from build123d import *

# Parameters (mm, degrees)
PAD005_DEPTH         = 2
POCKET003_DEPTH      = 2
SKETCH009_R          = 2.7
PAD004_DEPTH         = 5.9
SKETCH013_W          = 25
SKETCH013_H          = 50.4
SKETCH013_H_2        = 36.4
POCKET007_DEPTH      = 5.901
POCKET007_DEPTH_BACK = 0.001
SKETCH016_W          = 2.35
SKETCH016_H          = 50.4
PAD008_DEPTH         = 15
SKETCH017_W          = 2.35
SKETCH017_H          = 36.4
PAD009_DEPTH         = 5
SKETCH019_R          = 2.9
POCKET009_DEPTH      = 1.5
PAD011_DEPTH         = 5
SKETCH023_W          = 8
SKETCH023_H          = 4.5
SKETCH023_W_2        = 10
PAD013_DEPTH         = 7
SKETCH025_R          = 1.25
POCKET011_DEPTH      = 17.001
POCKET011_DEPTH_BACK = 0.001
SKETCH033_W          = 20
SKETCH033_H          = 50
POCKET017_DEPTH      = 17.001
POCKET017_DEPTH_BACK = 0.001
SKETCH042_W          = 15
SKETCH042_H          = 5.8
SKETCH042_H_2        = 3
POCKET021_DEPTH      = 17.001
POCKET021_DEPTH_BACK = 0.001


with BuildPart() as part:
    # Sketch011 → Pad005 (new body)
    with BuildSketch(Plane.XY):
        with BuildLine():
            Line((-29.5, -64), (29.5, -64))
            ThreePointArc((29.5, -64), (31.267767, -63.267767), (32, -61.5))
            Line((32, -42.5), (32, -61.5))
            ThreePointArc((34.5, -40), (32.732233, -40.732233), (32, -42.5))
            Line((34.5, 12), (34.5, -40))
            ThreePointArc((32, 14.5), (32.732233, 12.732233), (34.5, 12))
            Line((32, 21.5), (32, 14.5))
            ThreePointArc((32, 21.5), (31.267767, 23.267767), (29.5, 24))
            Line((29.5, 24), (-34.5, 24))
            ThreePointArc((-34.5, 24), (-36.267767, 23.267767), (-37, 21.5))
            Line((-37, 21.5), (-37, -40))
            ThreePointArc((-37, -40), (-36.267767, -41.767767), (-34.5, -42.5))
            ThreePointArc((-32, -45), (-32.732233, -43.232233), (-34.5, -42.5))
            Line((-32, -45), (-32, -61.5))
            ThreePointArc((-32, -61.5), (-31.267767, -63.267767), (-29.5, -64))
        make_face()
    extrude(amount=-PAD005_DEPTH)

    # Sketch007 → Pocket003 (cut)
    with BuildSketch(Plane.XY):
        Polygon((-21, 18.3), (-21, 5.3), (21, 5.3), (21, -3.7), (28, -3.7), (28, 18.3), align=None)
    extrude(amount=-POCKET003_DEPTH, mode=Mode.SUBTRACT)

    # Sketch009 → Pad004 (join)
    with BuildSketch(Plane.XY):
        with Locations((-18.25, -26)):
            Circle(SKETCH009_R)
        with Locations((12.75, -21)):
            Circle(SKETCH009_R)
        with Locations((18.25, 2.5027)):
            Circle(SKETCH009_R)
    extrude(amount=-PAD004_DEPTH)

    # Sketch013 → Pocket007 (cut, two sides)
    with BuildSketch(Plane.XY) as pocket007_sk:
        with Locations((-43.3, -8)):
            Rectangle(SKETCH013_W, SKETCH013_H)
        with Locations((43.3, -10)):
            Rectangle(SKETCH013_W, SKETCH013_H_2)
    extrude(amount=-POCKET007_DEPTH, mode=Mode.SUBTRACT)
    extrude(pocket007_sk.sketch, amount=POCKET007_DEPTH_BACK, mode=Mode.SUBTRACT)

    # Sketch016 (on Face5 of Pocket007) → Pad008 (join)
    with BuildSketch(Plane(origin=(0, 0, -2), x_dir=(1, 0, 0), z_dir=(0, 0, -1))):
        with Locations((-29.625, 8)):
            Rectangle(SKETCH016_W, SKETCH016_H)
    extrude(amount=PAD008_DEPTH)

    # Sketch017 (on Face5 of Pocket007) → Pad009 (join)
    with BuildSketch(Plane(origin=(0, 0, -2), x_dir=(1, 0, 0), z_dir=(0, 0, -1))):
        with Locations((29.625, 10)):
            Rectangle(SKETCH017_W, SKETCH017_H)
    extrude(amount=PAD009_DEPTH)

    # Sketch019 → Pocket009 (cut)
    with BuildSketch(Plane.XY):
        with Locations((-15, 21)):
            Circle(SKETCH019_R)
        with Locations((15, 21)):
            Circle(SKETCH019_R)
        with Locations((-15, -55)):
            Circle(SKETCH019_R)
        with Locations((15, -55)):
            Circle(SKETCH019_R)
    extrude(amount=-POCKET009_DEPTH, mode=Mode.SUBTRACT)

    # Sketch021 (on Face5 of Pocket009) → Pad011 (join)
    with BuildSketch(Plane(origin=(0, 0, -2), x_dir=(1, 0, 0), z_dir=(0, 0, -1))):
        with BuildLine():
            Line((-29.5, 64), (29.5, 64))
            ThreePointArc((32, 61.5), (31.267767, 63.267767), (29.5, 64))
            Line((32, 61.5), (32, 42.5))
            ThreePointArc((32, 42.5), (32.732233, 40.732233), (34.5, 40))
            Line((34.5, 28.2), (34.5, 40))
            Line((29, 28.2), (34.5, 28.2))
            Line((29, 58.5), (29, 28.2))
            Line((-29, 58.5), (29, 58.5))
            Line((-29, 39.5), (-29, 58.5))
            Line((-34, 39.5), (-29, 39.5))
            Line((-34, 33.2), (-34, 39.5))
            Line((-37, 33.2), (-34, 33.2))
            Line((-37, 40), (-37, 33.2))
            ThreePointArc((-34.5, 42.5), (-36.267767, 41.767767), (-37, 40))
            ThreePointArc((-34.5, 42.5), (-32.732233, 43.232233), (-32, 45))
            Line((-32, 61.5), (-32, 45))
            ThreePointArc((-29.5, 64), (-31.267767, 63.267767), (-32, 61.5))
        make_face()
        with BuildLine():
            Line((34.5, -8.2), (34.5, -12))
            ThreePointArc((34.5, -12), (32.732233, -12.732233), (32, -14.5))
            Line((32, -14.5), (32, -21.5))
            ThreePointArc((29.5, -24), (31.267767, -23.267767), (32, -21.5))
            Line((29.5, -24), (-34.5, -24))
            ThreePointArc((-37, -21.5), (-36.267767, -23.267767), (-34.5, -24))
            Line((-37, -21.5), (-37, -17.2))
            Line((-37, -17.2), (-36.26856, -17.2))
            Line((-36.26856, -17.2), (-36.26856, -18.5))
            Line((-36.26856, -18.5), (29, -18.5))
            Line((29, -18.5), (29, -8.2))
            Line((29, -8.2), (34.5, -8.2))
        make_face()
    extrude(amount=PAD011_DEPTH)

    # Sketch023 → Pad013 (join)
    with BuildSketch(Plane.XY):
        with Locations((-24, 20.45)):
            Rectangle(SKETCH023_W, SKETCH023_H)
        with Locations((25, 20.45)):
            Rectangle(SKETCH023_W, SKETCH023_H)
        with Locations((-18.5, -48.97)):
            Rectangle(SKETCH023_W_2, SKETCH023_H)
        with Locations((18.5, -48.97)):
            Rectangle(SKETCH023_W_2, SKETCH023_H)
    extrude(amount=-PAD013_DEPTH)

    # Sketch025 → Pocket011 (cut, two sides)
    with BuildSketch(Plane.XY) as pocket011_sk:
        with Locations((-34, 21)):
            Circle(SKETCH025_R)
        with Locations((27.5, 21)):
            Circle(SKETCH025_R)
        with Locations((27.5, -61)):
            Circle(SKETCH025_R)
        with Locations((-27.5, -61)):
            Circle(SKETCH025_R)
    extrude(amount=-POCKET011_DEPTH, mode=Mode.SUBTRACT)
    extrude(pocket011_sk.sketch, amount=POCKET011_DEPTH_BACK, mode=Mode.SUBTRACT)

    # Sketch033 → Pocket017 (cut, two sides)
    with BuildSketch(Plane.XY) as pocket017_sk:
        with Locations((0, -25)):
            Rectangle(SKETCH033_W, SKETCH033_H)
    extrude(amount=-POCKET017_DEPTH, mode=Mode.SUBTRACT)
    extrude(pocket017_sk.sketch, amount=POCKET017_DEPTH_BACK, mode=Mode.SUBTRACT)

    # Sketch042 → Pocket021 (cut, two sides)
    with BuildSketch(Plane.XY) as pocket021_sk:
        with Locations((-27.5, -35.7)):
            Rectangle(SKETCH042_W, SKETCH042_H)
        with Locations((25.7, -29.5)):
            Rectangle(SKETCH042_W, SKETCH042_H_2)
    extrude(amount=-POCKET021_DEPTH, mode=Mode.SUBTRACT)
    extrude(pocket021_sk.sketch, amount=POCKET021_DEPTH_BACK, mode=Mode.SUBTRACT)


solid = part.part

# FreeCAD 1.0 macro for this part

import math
import FreeCAD as App
import Part
import Sketcher
Q = App.Units.Quantity

doc = App.newDocument("Part")
body = doc.addObject("PartDesign::Body", "Body")

sketch1 = body.newObject("Sketcher::SketchObject", "Sketch")
sketch1.AttachmentSupport = (doc.getObject("XY_Plane"), [""])
sketch1.MapMode = "FlatFace"
sketch1.addGeometry([
    Part.LineSegment(App.Vector(-29.5, -64, 0), App.Vector(29.5, -64, 0)),
    Part.ArcOfCircle(Part.Circle(App.Vector(29.5, -61.5, 0), App.Vector(0, 0, 1), 2.5), math.radians(-90.000004), math.radians(0.000004)),
    Part.LineSegment(App.Vector(32, -61.5, 0), App.Vector(32, -42.5, 0)),
    Part.ArcOfCircle(Part.Circle(App.Vector(34.5, -42.5, 0), App.Vector(0, 0, 1), 2.5), math.radians(89.999996), math.radians(180.000004)),
    Part.LineSegment(App.Vector(34.5, -40, 0), App.Vector(34.5, 12, 0)),
    Part.ArcOfCircle(Part.Circle(App.Vector(34.5, 14.5, 0), App.Vector(0, 0, 1), 2.5), math.radians(179.999996), math.radians(270.000004)),
    Part.LineSegment(App.Vector(32, 14.5, 0), App.Vector(32, 21.5, 0)),
    Part.ArcOfCircle(Part.Circle(App.Vector(29.5, 21.5, 0), App.Vector(0, 0, 1), 2.5), math.radians(-0.000004), math.radians(90.000004)),
    Part.LineSegment(App.Vector(29.5, 24, 0), App.Vector(-34.5, 24, 0)),
    Part.ArcOfCircle(Part.Circle(App.Vector(-34.5, 21.5, 0), App.Vector(0, 0, 1), 2.5), math.radians(89.999996), math.radians(180.000004)),
    Part.LineSegment(App.Vector(-37, 21.5, 0), App.Vector(-37, -40, 0)),
    Part.ArcOfCircle(Part.Circle(App.Vector(-34.5, -40, 0), App.Vector(0, 0, 1), 2.5), math.radians(179.999996), math.radians(270.000004)),
    Part.ArcOfCircle(Part.Circle(App.Vector(-34.5, -45, 0), App.Vector(0, 0, 1), 2.5), math.radians(-0.000004), math.radians(90.000004)),
    Part.LineSegment(App.Vector(-32, -45, 0), App.Vector(-32, -61.5, 0)),
    Part.ArcOfCircle(Part.Circle(App.Vector(-29.5, -61.5, 0), App.Vector(0, 0, 1), 2.5), math.radians(179.999996), math.radians(270.000004)),
], False)
sketch1.addConstraint([
    Sketcher.Constraint("Tangent", 0, 2, 1, 1),
    Sketcher.Constraint("Tangent", 1, 2, 2, 1),
    Sketcher.Constraint("Tangent", 2, 2, 3, 2),
    Sketcher.Constraint("Coincident", 3, 1, 4, 1),
    Sketcher.Constraint("Coincident", 4, 2, 5, 2),
    Sketcher.Constraint("Tangent", 5, 1, 6, 1),
    Sketcher.Constraint("Tangent", 6, 2, 7, 1),
    Sketcher.Constraint("Tangent", 7, 2, 8, 1),
    Sketcher.Constraint("Tangent", 8, 2, 9, 1),
    Sketcher.Constraint("Tangent", 9, 2, 10, 1),
    Sketcher.Constraint("Tangent", 10, 2, 11, 1),
    Sketcher.Constraint("Tangent", 11, 2, 12, 2),
    Sketcher.Constraint("Tangent", 12, 1, 13, 1),
    Sketcher.Constraint("Tangent", 13, 2, 14, 1),
    Sketcher.Constraint("Tangent", 14, 2, 0, 1),
    Sketcher.Constraint("Horizontal", 0),
    Sketcher.Constraint("Vertical", 2),
    Sketcher.Constraint("Vertical", 4),
    Sketcher.Constraint("Vertical", 6),
    Sketcher.Constraint("Horizontal", 8),
    Sketcher.Constraint("Vertical", 10),
    Sketcher.Constraint("Vertical", 13),
    Sketcher.Constraint("Equal", 1, 3),
    Sketcher.Constraint("Equal", 3, 5),
    Sketcher.Constraint("Equal", 5, 7),
    Sketcher.Constraint("Equal", 7, 9),
    Sketcher.Constraint("Equal", 9, 11),
    Sketcher.Constraint("Equal", 11, 12),
    Sketcher.Constraint("Equal", 12, 14),
    Sketcher.Constraint("Horizontal", 11, 3, 3, 1),
    Sketcher.Constraint("Vertical", 3, 3, 5, 3),
    Sketcher.Constraint("Vertical", 11, 3, 12, 3),
    Sketcher.Constraint("Vertical", 5, 3, 3, 1),
    Sketcher.Constraint("Radius", 1, Q("2.5 mm")),
    Sketcher.Constraint("DistanceX", 0, 1, 0, 2, Q("59 mm")),
    Sketcher.Constraint("DistanceY", 2, 1, 2, 2, Q("19 mm")),
    Sketcher.Constraint("DistanceY", 4, 1, 4, 2, Q("52 mm")),
    Sketcher.Constraint("DistanceY", 6, 1, 6, 2, Q("7 mm")),
    Sketcher.Constraint("DistanceY", 11, 3, -1, 1, Q("40 mm")),
    Sketcher.Constraint("DistanceX", -1, 1, 1, 2, Q("32 mm")),
])
pad1 = body.newObject("PartDesign::Pad", "Pad")
pad1.Profile = sketch1
pad1.Length = 2
pad1.Reversed = True

sketch2 = body.newObject("Sketcher::SketchObject", "Sketch001")
sketch2.AttachmentSupport = (doc.getObject("XY_Plane"), [""])
sketch2.MapMode = "FlatFace"
sketch2.addGeometry([
    Part.LineSegment(App.Vector(-21, 18.3, 0), App.Vector(-21, 5.3, 0)),
    Part.LineSegment(App.Vector(-21, 5.3, 0), App.Vector(21, 5.3, 0)),
    Part.LineSegment(App.Vector(21, 5.3, 0), App.Vector(21, -3.7, 0)),
    Part.LineSegment(App.Vector(21, -3.7, 0), App.Vector(28, -3.7, 0)),
    Part.LineSegment(App.Vector(28, -3.7, 0), App.Vector(28, 18.3, 0)),
    Part.LineSegment(App.Vector(28, 18.3, 0), App.Vector(-21, 18.3, 0)),
], False)
sketch2.addConstraint([
    Sketcher.Constraint("Coincident", 0, 2, 1, 1),
    Sketcher.Constraint("Coincident", 1, 2, 2, 1),
    Sketcher.Constraint("Coincident", 2, 2, 3, 1),
    Sketcher.Constraint("Coincident", 3, 2, 4, 1),
    Sketcher.Constraint("Coincident", 4, 2, 5, 1),
    Sketcher.Constraint("Coincident", 5, 2, 0, 1),
    Sketcher.Constraint("Vertical", 0),
    Sketcher.Constraint("Horizontal", 1),
    Sketcher.Constraint("Vertical", 2),
    Sketcher.Constraint("Horizontal", 3),
    Sketcher.Constraint("Vertical", 4),
    Sketcher.Constraint("Horizontal", 5),
    Sketcher.Constraint("DistanceX", 1, 1, 1, 2, Q("42 mm")),
    Sketcher.Constraint("DistanceX", 3, 1, 3, 2, Q("7 mm")),
    Sketcher.Constraint("DistanceY", 0, 2, 0, 1, Q("13 mm")),
    Sketcher.Constraint("DistanceY", 2, 2, 2, 1, Q("9 mm")),
    Sketcher.Constraint("DistanceX", 0, 2, -1, 1, Q("21 mm")),
    Sketcher.Constraint("DistanceY", -1, 1, 0, 2, Q("5.3 mm")),
])
pocket1 = body.newObject("PartDesign::Pocket", "Pocket")
pocket1.Profile = sketch2
pocket1.Length = 2

sketch3 = body.newObject("Sketcher::SketchObject", "Sketch002")
sketch3.AttachmentSupport = (doc.getObject("XY_Plane"), [""])
sketch3.MapMode = "FlatFace"
sketch3.addGeometry([
    Part.Circle(App.Vector(-18.25, -26, 0), App.Vector(0, 0, 1), 2.7),
    Part.Circle(App.Vector(12.75, -21, 0), App.Vector(0, 0, 1), 2.7),
    Part.Circle(App.Vector(18.25, 2.5027, 0), App.Vector(0, 0, 1), 2.7),
], False)
sketch3.addConstraint([
    Sketcher.Constraint("Equal", 0, 1),
    Sketcher.Constraint("Equal", 1, 2),
    Sketcher.Constraint("Diameter", 0, Q("5.4 mm")),
    Sketcher.Constraint("DistanceY", 0, 3, -1, 1, Q("26 mm")),
    Sketcher.Constraint("DistanceY", 1, 3, -1, 1, Q("21 mm")),
    Sketcher.Constraint("DistanceX", 0, 3, 1, 3, Q("31 mm")),
    Sketcher.Constraint("DistanceX", 1, 3, 2, 3, Q("5.5 mm")),
    Sketcher.Constraint("DistanceX", 0, 3, -1, 1, Q("18.25 mm")),
    Sketcher.Constraint("DistanceY", -1, 1, 2, 3, Q("2.5027 mm")),
])
pad2 = body.newObject("PartDesign::Pad", "Pad001")
pad2.Profile = sketch3
pad2.Length = 5.9
pad2.Reversed = True

sketch4 = body.newObject("Sketcher::SketchObject", "Sketch003")
sketch4.AttachmentSupport = (doc.getObject("XY_Plane"), [""])
sketch4.MapMode = "FlatFace"
sketch4.addGeometry([
    Part.LineSegment(App.Vector(-55.8, 17.2, 0), App.Vector(-55.8, -33.2, 0)),
    Part.LineSegment(App.Vector(-55.8, -33.2, 0), App.Vector(-30.8, -33.2, 0)),
    Part.LineSegment(App.Vector(-30.8, -33.2, 0), App.Vector(-30.8, 17.2, 0)),
    Part.LineSegment(App.Vector(-30.8, 17.2, 0), App.Vector(-55.8, 17.2, 0)),
    Part.LineSegment(App.Vector(30.8, 8.2, 0), App.Vector(30.8, -28.2, 0)),
    Part.LineSegment(App.Vector(30.8, -28.2, 0), App.Vector(55.8, -28.2, 0)),
    Part.LineSegment(App.Vector(55.8, -28.2, 0), App.Vector(55.8, 8.2, 0)),
    Part.LineSegment(App.Vector(55.8, 8.2, 0), App.Vector(30.8, 8.2, 0)),
], False)
sketch4.addConstraint([
    Sketcher.Constraint("Coincident", 0, 2, 1, 1),
    Sketcher.Constraint("Coincident", 1, 2, 2, 1),
    Sketcher.Constraint("Coincident", 2, 2, 3, 1),
    Sketcher.Constraint("Coincident", 3, 2, 0, 1),
    Sketcher.Constraint("Coincident", 4, 2, 5, 1),
    Sketcher.Constraint("Coincident", 5, 2, 6, 1),
    Sketcher.Constraint("Coincident", 6, 2, 7, 1),
    Sketcher.Constraint("Coincident", 7, 2, 4, 1),
    Sketcher.Constraint("Vertical", 0),
    Sketcher.Constraint("Horizontal", 1),
    Sketcher.Constraint("Vertical", 2),
    Sketcher.Constraint("Horizontal", 3),
    Sketcher.Constraint("Vertical", 4),
    Sketcher.Constraint("Horizontal", 5),
    Sketcher.Constraint("Vertical", 6),
    Sketcher.Constraint("Horizontal", 7),
    Sketcher.Constraint("Equal", 3, 5),
    Sketcher.Constraint("DistanceX", 1, 1, 1, 2, Q("25 mm")),
    Sketcher.Constraint("DistanceY", 0, 2, 0, 1, Q("50.4 mm")),
    Sketcher.Constraint("DistanceY", 4, 2, 4, 1, Q("36.4 mm")),
    Sketcher.Constraint("DistanceY", 1, 2, 4, 2, Q("5 mm")),
    Sketcher.Constraint("DistanceX", 0, 2, -1, 1, Q("55.8 mm")),
    Sketcher.Constraint("DistanceY", 0, 2, -1, 1, Q("33.2 mm")),
    Sketcher.Constraint("DistanceX", -1, 1, 4, 2, Q("30.8 mm")),
])
pocket2 = body.newObject("PartDesign::Pocket", "Pocket001")
pocket2.Profile = sketch4
pocket2.Type = "ThroughAll"
pocket2.Midplane = True

sketch5 = body.newObject("Sketcher::SketchObject", "Sketch004")
sketch5.AttachmentSupport = (doc.getObject("XY_Plane"), [""])
sketch5.MapMode = "FlatFace"
sketch5.AttachmentOffset = App.Placement(App.Vector(0, 0, -2), App.Rotation())
sketch5.addGeometry([
    Part.LineSegment(App.Vector(-30.8, -33.2, 0), App.Vector(-30.8, 17.2, 0)),
    Part.LineSegment(App.Vector(-30.8, 17.2, 0), App.Vector(-28.45, 17.2, 0)),
    Part.LineSegment(App.Vector(-28.45, 17.2, 0), App.Vector(-28.45, -33.2, 0)),
    Part.LineSegment(App.Vector(-28.45, -33.2, 0), App.Vector(-30.8, -33.2, 0)),
], False)
sketch5.addConstraint([
    Sketcher.Constraint("Coincident", 0, 2, 1, 1),
    Sketcher.Constraint("Coincident", 1, 2, 2, 1),
    Sketcher.Constraint("Coincident", 2, 2, 3, 1),
    Sketcher.Constraint("Coincident", 3, 2, 0, 1),
    Sketcher.Constraint("Vertical", 0),
    Sketcher.Constraint("Horizontal", 1),
    Sketcher.Constraint("Vertical", 2),
    Sketcher.Constraint("Horizontal", 3),
    Sketcher.Constraint("DistanceY", 0, 1, 0, 2, Q("50.4 mm")),
    Sketcher.Constraint("DistanceX", 1, 1, 1, 2, Q("2.35 mm")),
    Sketcher.Constraint("DistanceX", 0, 2, -1, 1, Q("30.8 mm")),
    Sketcher.Constraint("DistanceY", -1, 1, 0, 2, Q("17.2 mm")),
])
pad3 = body.newObject("PartDesign::Pad", "Pad002")
pad3.Profile = sketch5
pad3.Length = 15
pad3.Reversed = True

sketch6 = body.newObject("Sketcher::SketchObject", "Sketch005")
sketch6.AttachmentSupport = (doc.getObject("XY_Plane"), [""])
sketch6.MapMode = "FlatFace"
sketch6.AttachmentOffset = App.Placement(App.Vector(0, 0, -2), App.Rotation())
sketch6.addGeometry([
    Part.LineSegment(App.Vector(28.45, -28.2, 0), App.Vector(28.45, 8.2, 0)),
    Part.LineSegment(App.Vector(28.45, 8.2, 0), App.Vector(30.8, 8.2, 0)),
    Part.LineSegment(App.Vector(30.8, 8.2, 0), App.Vector(30.8, -28.2, 0)),
    Part.LineSegment(App.Vector(30.8, -28.2, 0), App.Vector(28.45, -28.2, 0)),
], False)
sketch6.addConstraint([
    Sketcher.Constraint("Coincident", 0, 2, 1, 1),
    Sketcher.Constraint("Coincident", 1, 2, 2, 1),
    Sketcher.Constraint("Coincident", 2, 2, 3, 1),
    Sketcher.Constraint("Coincident", 3, 2, 0, 1),
    Sketcher.Constraint("Vertical", 0),
    Sketcher.Constraint("Horizontal", 1),
    Sketcher.Constraint("Vertical", 2),
    Sketcher.Constraint("Horizontal", 3),
    Sketcher.Constraint("DistanceY", 0, 1, 0, 2, Q("36.4 mm")),
    Sketcher.Constraint("DistanceX", 1, 1, 1, 2, Q("2.35 mm")),
    Sketcher.Constraint("DistanceY", -1, 1, 0, 2, Q("8.2 mm")),
    Sketcher.Constraint("DistanceX", -1, 1, 1, 2, Q("30.8 mm")),
])
pad4 = body.newObject("PartDesign::Pad", "Pad003")
pad4.Profile = sketch6
pad4.Length = 5
pad4.Reversed = True

sketch7 = body.newObject("Sketcher::SketchObject", "Sketch006")
sketch7.AttachmentSupport = (doc.getObject("XY_Plane"), [""])
sketch7.MapMode = "FlatFace"
sketch7.addGeometry([
    Part.Circle(App.Vector(-15, 21, 0), App.Vector(0, 0, 1), 2.9),
    Part.Circle(App.Vector(15, 21, 0), App.Vector(0, 0, 1), 2.9),
    Part.Circle(App.Vector(-15, -55, 0), App.Vector(0, 0, 1), 2.9),
    Part.Circle(App.Vector(15, -55, 0), App.Vector(0, 0, 1), 2.9),
], False)
sketch7.addConstraint([
    Sketcher.Constraint("Equal", 0, 1),
    Sketcher.Constraint("Equal", 1, 2),
    Sketcher.Constraint("Equal", 2, 3),
    Sketcher.Constraint("Symmetric", 0, 3, 1, 3, -2),
    Sketcher.Constraint("Symmetric", 2, 3, 3, 3, -2),
    Sketcher.Constraint("Vertical", 0, 3, 2, 3),
    Sketcher.Constraint("Diameter", 0, Q("5.8 mm")),
    Sketcher.Constraint("DistanceX", 0, 3, -1, 1, Q("15 mm")),
    Sketcher.Constraint("DistanceY", -1, 1, 0, 3, Q("21 mm")),
    Sketcher.Constraint("DistanceY", 2, 3, -1, 1, Q("55 mm")),
])
pocket3 = body.newObject("PartDesign::Pocket", "Pocket002")
pocket3.Profile = sketch7
pocket3.Length = 1.5

sketch8 = body.newObject("Sketcher::SketchObject", "Sketch007")
sketch8.AttachmentSupport = (doc.getObject("XY_Plane"), [""])
sketch8.MapMode = "FlatFace"
sketch8.AttachmentOffset = App.Placement(App.Vector(0, 0, -2), App.Rotation())
sketch8.addGeometry([
    Part.LineSegment(App.Vector(29.5, -64, 0), App.Vector(-29.5, -64, 0)),
    Part.ArcOfCircle(Part.Circle(App.Vector(-29.5, -61.5, 0), App.Vector(0, 0, 1), 2.5), math.radians(179.999996), math.radians(270.000004)),
    Part.LineSegment(App.Vector(-32, -61.5, 0), App.Vector(-32, -45, 0)),
    Part.ArcOfCircle(Part.Circle(App.Vector(-34.5, -45, 0), App.Vector(0, 0, 1), 2.5), math.radians(-0.000004), math.radians(90.000004)),
    Part.ArcOfCircle(Part.Circle(App.Vector(-34.5, -40, 0), App.Vector(0, 0, 1), 2.5), math.radians(179.999996), math.radians(270.000004)),
    Part.LineSegment(App.Vector(-37, -40, 0), App.Vector(-37, -33.2, 0)),
    Part.LineSegment(App.Vector(-37, -33.2, 0), App.Vector(-34, -33.2, 0)),
    Part.LineSegment(App.Vector(-34, -33.2, 0), App.Vector(-34, -39.5, 0)),
    Part.LineSegment(App.Vector(-34, -39.5, 0), App.Vector(-29, -39.5, 0)),
    Part.LineSegment(App.Vector(-29, -39.5, 0), App.Vector(-29, -58.5, 0)),
    Part.LineSegment(App.Vector(-29, -58.5, 0), App.Vector(29, -58.5, 0)),
    Part.LineSegment(App.Vector(29, -58.5, 0), App.Vector(29, -28.2, 0)),
    Part.LineSegment(App.Vector(29, -28.2, 0), App.Vector(34.5, -28.2, 0)),
    Part.LineSegment(App.Vector(34.5, -28.2, 0), App.Vector(34.5, -40, 0)),
    Part.ArcOfCircle(Part.Circle(App.Vector(34.5, -42.5, 0), App.Vector(0, 0, 1), 2.5), math.radians(89.999996), math.radians(180.000004)),
    Part.LineSegment(App.Vector(32, -42.5, 0), App.Vector(32, -61.5, 0)),
    Part.ArcOfCircle(Part.Circle(App.Vector(29.5, -61.5, 0), App.Vector(0, 0, 1), 2.5), math.radians(-90.000004), math.radians(0.000004)),
    Part.LineSegment(App.Vector(34.5, 12, 0), App.Vector(34.5, 8.2, 0)),
    Part.LineSegment(App.Vector(34.5, 8.2, 0), App.Vector(29, 8.2, 0)),
    Part.LineSegment(App.Vector(29, 8.2, 0), App.Vector(29, 18.5, 0)),
    Part.LineSegment(App.Vector(29, 18.5, 0), App.Vector(-36.26856, 18.5, 0)),
    Part.LineSegment(App.Vector(-36.26856, 18.5, 0), App.Vector(-36.26856, 17.2, 0)),
    Part.LineSegment(App.Vector(-36.26856, 17.2, 0), App.Vector(-37, 17.2, 0)),
    Part.LineSegment(App.Vector(-37, 17.2, 0), App.Vector(-37, 21.5, 0)),
    Part.ArcOfCircle(Part.Circle(App.Vector(-34.5, 21.5, 0), App.Vector(0, 0, 1), 2.5), math.radians(89.999996), math.radians(180.000004)),
    Part.LineSegment(App.Vector(-34.5, 24, 0), App.Vector(29.5, 24, 0)),
    Part.ArcOfCircle(Part.Circle(App.Vector(29.5, 21.5, 0), App.Vector(0, 0, 1), 2.5), math.radians(-0.000004), math.radians(90.000004)),
    Part.LineSegment(App.Vector(32, 21.5, 0), App.Vector(32, 14.5, 0)),
    Part.ArcOfCircle(Part.Circle(App.Vector(34.5, 14.5, 0), App.Vector(0, 0, 1), 2.5), math.radians(179.999996), math.radians(270.000004)),
], False)
sketch8.addConstraint([
    Sketcher.Constraint("Tangent", 0, 2, 1, 2),
    Sketcher.Constraint("Tangent", 1, 1, 2, 1),
    Sketcher.Constraint("Tangent", 2, 2, 3, 1),
    Sketcher.Constraint("Tangent", 3, 2, 4, 2),
    Sketcher.Constraint("Tangent", 4, 1, 5, 1),
    Sketcher.Constraint("Coincident", 5, 2, 6, 1),
    Sketcher.Constraint("Coincident", 6, 2, 7, 1),
    Sketcher.Constraint("Coincident", 7, 2, 8, 1),
    Sketcher.Constraint("Coincident", 8, 2, 9, 1),
    Sketcher.Constraint("Coincident", 9, 2, 10, 1),
    Sketcher.Constraint("Coincident", 10, 2, 11, 1),
    Sketcher.Constraint("Coincident", 11, 2, 12, 1),
    Sketcher.Constraint("Coincident", 12, 2, 13, 1),
    Sketcher.Constraint("Coincident", 13, 2, 14, 1),
    Sketcher.Constraint("Tangent", 14, 2, 15, 1),
    Sketcher.Constraint("Tangent", 15, 2, 16, 2),
    Sketcher.Constraint("Tangent", 16, 1, 0, 1),
    Sketcher.Constraint("Coincident", 17, 2, 18, 1),
    Sketcher.Constraint("Coincident", 18, 2, 19, 1),
    Sketcher.Constraint("Coincident", 19, 2, 20, 1),
    Sketcher.Constraint("Coincident", 20, 2, 21, 1),
    Sketcher.Constraint("Coincident", 21, 2, 22, 1),
    Sketcher.Constraint("Coincident", 22, 2, 23, 1),
    Sketcher.Constraint("Tangent", 23, 2, 24, 2),
    Sketcher.Constraint("Tangent", 24, 1, 25, 1),
    Sketcher.Constraint("Tangent", 25, 2, 26, 2),
    Sketcher.Constraint("Tangent", 26, 1, 27, 1),
    Sketcher.Constraint("Tangent", 27, 2, 28, 1),
    Sketcher.Constraint("Coincident", 28, 2, 17, 1),
    Sketcher.Constraint("Horizontal", 0),
    Sketcher.Constraint("Vertical", 2),
    Sketcher.Constraint("Vertical", 5),
    Sketcher.Constraint("Horizontal", 6),
    Sketcher.Constraint("Vertical", 7),
    Sketcher.Constraint("Horizontal", 8),
    Sketcher.Constraint("Vertical", 9),
    Sketcher.Constraint("Horizontal", 10),
    Sketcher.Constraint("Vertical", 11),
    Sketcher.Constraint("Horizontal", 12),
    Sketcher.Constraint("Vertical", 13),
    Sketcher.Constraint("Vertical", 15),
    Sketcher.Constraint("Vertical", 17),
    Sketcher.Constraint("Horizontal", 18),
    Sketcher.Constraint("Vertical", 19),
    Sketcher.Constraint("Horizontal", 20),
    Sketcher.Constraint("Vertical", 21),
    Sketcher.Constraint("Horizontal", 22),
    Sketcher.Constraint("Vertical", 23),
    Sketcher.Constraint("Horizontal", 25),
    Sketcher.Constraint("Vertical", 27),
    Sketcher.Constraint("Equal", 1, 3),
    Sketcher.Constraint("Equal", 3, 4),
    Sketcher.Constraint("Equal", 4, 14),
    Sketcher.Constraint("Equal", 14, 16),
    Sketcher.Constraint("Equal", 16, 24),
    Sketcher.Constraint("Equal", 24, 26),
    Sketcher.Constraint("Equal", 26, 28),
    Sketcher.Constraint("Horizontal", 14, 3, 3, 2),
    Sketcher.Constraint("Vertical", 3, 3, 4, 3),
    Sketcher.Constraint("Vertical", 4, 3, 24, 3),
    Sketcher.Constraint("Vertical", 16, 3, 26, 3),
    Sketcher.Constraint("Vertical", 28, 3, 12, 2),
    Sketcher.Constraint("Vertical", 13, 2, 17, 2),
    Sketcher.Constraint("Vertical", 11, 2, 18, 2),
    Sketcher.Constraint("Equal", 9, 15),
    Sketcher.Constraint("Radius", 1, Q("2.5 mm")),
    Sketcher.Constraint("DistanceX", 0, 2, 0, 1, Q("59 mm")),
    Sketcher.Constraint("DistanceX", 6, 1, 6, 2, Q("3 mm")),
    Sketcher.Constraint("DistanceX", 8, 1, 8, 2, Q("5 mm")),
    Sketcher.Constraint("DistanceX", 10, 1, 10, 2, Q("58 mm")),
    Sketcher.Constraint("DistanceY", 9, 2, 9, 1, Q("19 mm")),
    Sketcher.Constraint("DistanceY", 27, 2, 27, 1, Q("7 mm")),
    Sketcher.Constraint("DistanceY", 5, 1, 5, 2, Q("6.8 mm")),
    Sketcher.Constraint("DistanceY", 7, 2, 7, 1, Q("6.3 mm")),
    Sketcher.Constraint("DistanceY", 11, 1, 11, 2, Q("30.3 mm")),
    Sketcher.Constraint("DistanceY", 17, 2, 17, 1, Q("3.8 mm")),
    Sketcher.Constraint("DistanceY", 19, 1, 19, 2, Q("10.3 mm")),
    Sketcher.Constraint("DistanceY", 21, 2, 21, 1, Q("1.3 mm")),
    Sketcher.Constraint("DistanceY", 3, 3, -1, 1, Q("45 mm")),
    Sketcher.Constraint("DistanceX", 1, 1, -1, 1, Q("32 mm")),
    Sketcher.Constraint("DistanceY", -1, 1, 24, 1, Q("24 mm")),
    Sketcher.Constraint("DistanceX", 20, 2, 20, 1, Q("65.26856 mm")),
])
pad5 = body.newObject("PartDesign::Pad", "Pad004")
pad5.Profile = sketch8
pad5.Length = 5
pad5.Reversed = True

sketch9 = body.newObject("Sketcher::SketchObject", "Sketch008")
sketch9.AttachmentSupport = (doc.getObject("XY_Plane"), [""])
sketch9.MapMode = "FlatFace"
sketch9.addGeometry([
    Part.LineSegment(App.Vector(-28, 22.7, 0), App.Vector(-28, 18.2, 0)),
    Part.LineSegment(App.Vector(-28, 18.2, 0), App.Vector(-20, 18.2, 0)),
    Part.LineSegment(App.Vector(-20, 18.2, 0), App.Vector(-20, 22.7, 0)),
    Part.LineSegment(App.Vector(-20, 22.7, 0), App.Vector(-28, 22.7, 0)),
    Part.LineSegment(App.Vector(21, 22.7, 0), App.Vector(21, 18.2, 0)),
    Part.LineSegment(App.Vector(21, 18.2, 0), App.Vector(29, 18.2, 0)),
    Part.LineSegment(App.Vector(29, 18.2, 0), App.Vector(29, 22.7, 0)),
    Part.LineSegment(App.Vector(29, 22.7, 0), App.Vector(21, 22.7, 0)),
    Part.LineSegment(App.Vector(-23.5, -46.72, 0), App.Vector(-23.5, -51.22, 0)),
    Part.LineSegment(App.Vector(-23.5, -51.22, 0), App.Vector(-13.5, -51.22, 0)),
    Part.LineSegment(App.Vector(-13.5, -51.22, 0), App.Vector(-13.5, -46.72, 0)),
    Part.LineSegment(App.Vector(-13.5, -46.72, 0), App.Vector(-23.5, -46.72, 0)),
    Part.LineSegment(App.Vector(13.5, -46.72, 0), App.Vector(13.5, -51.22, 0)),
    Part.LineSegment(App.Vector(13.5, -51.22, 0), App.Vector(23.5, -51.22, 0)),
    Part.LineSegment(App.Vector(23.5, -51.22, 0), App.Vector(23.5, -46.72, 0)),
    Part.LineSegment(App.Vector(23.5, -46.72, 0), App.Vector(13.5, -46.72, 0)),
], False)
sketch9.addConstraint([
    Sketcher.Constraint("Coincident", 0, 2, 1, 1),
    Sketcher.Constraint("Coincident", 1, 2, 2, 1),
    Sketcher.Constraint("Coincident", 2, 2, 3, 1),
    Sketcher.Constraint("Coincident", 3, 2, 0, 1),
    Sketcher.Constraint("Coincident", 4, 2, 5, 1),
    Sketcher.Constraint("Coincident", 5, 2, 6, 1),
    Sketcher.Constraint("Coincident", 6, 2, 7, 1),
    Sketcher.Constraint("Coincident", 7, 2, 4, 1),
    Sketcher.Constraint("Coincident", 8, 2, 9, 1),
    Sketcher.Constraint("Coincident", 9, 2, 10, 1),
    Sketcher.Constraint("Coincident", 10, 2, 11, 1),
    Sketcher.Constraint("Coincident", 11, 2, 8, 1),
    Sketcher.Constraint("Coincident", 12, 2, 13, 1),
    Sketcher.Constraint("Coincident", 13, 2, 14, 1),
    Sketcher.Constraint("Coincident", 14, 2, 15, 1),
    Sketcher.Constraint("Coincident", 15, 2, 12, 1),
    Sketcher.Constraint("Vertical", 0),
    Sketcher.Constraint("Horizontal", 1),
    Sketcher.Constraint("Vertical", 2),
    Sketcher.Constraint("Horizontal", 3),
    Sketcher.Constraint("Vertical", 4),
    Sketcher.Constraint("Horizontal", 5),
    Sketcher.Constraint("Vertical", 6),
    Sketcher.Constraint("Horizontal", 7),
    Sketcher.Constraint("Vertical", 8),
    Sketcher.Constraint("Horizontal", 9),
    Sketcher.Constraint("Vertical", 10),
    Sketcher.Constraint("Horizontal", 11),
    Sketcher.Constraint("Vertical", 12),
    Sketcher.Constraint("Horizontal", 13),
    Sketcher.Constraint("Vertical", 14),
    Sketcher.Constraint("Horizontal", 15),
    Sketcher.Constraint("Symmetric", 9, 2, 12, 2, -2),
    Sketcher.Constraint("Symmetric", 11, 2, 14, 2, -2),
    Sketcher.Constraint("Horizontal", 1, 2, 4, 2),
    Sketcher.Constraint("Horizontal", 3, 2, 6, 2),
    Sketcher.Constraint("Equal", 3, 5),
    Sketcher.Constraint("Equal", 6, 8),
    Sketcher.Constraint("DistanceX", 1, 1, 1, 2, Q("8 mm")),
    Sketcher.Constraint("DistanceX", 9, 1, 9, 2, Q("10 mm")),
    Sketcher.Constraint("DistanceY", 0, 2, 0, 1, Q("4.5 mm")),
    Sketcher.Constraint("DistanceX", 0, 2, -1, 1, Q("28 mm")),
    Sketcher.Constraint("DistanceX", -1, 1, 4, 2, Q("21 mm")),
    Sketcher.Constraint("DistanceX", 9, 2, 12, 2, Q("27 mm")),
    Sketcher.Constraint("DistanceY", -1, 1, 0, 2, Q("18.2 mm")),
    Sketcher.Constraint("DistanceY", 8, 2, -1, 1, Q("51.22 mm")),
])
pad6 = body.newObject("PartDesign::Pad", "Pad005")
pad6.Profile = sketch9
pad6.Length = 7
pad6.Reversed = True

sketch10 = body.newObject("Sketcher::SketchObject", "Sketch009")
sketch10.AttachmentSupport = (doc.getObject("XY_Plane"), [""])
sketch10.MapMode = "FlatFace"
sketch10.addGeometry([
    Part.Circle(App.Vector(-34, 21, 0), App.Vector(0, 0, 1), 1.25),
    Part.Circle(App.Vector(27.5, 21, 0), App.Vector(0, 0, 1), 1.25),
    Part.Circle(App.Vector(27.5, -61, 0), App.Vector(0, 0, 1), 1.25),
    Part.Circle(App.Vector(-27.5, -61, 0), App.Vector(0, 0, 1), 1.25),
], False)
sketch10.addConstraint([
    Sketcher.Constraint("Equal", 0, 1),
    Sketcher.Constraint("Equal", 1, 2),
    Sketcher.Constraint("Equal", 2, 3),
    Sketcher.Constraint("Symmetric", 2, 3, 3, 3, -2),
    Sketcher.Constraint("Horizontal", 0, 3, 1, 3),
    Sketcher.Constraint("Vertical", 1, 3, 2, 3),
    Sketcher.Constraint("Diameter", 0, Q("2.5 mm")),
    Sketcher.Constraint("DistanceX", 0, 3, -1, 1, Q("34 mm")),
    Sketcher.Constraint("DistanceY", -1, 1, 0, 3, Q("21 mm")),
    Sketcher.Constraint("DistanceY", 2, 3, -1, 1, Q("61 mm")),
    Sketcher.Constraint("DistanceX", 3, 3, 2, 3, Q("55 mm")),
])
pocket4 = body.newObject("PartDesign::Pocket", "Pocket003")
pocket4.Profile = sketch10
pocket4.Type = "ThroughAll"
pocket4.Midplane = True

sketch11 = body.newObject("Sketcher::SketchObject", "Sketch010")
sketch11.AttachmentSupport = (doc.getObject("XY_Plane"), [""])
sketch11.MapMode = "FlatFace"
sketch11.addGeometry([
    Part.LineSegment(App.Vector(-10, 0, 0), App.Vector(-10, -50, 0)),
    Part.LineSegment(App.Vector(-10, -50, 0), App.Vector(10, -50, 0)),
    Part.LineSegment(App.Vector(10, -50, 0), App.Vector(10, 0, 0)),
    Part.LineSegment(App.Vector(10, 0, 0), App.Vector(-10, 0, 0)),
], False)
sketch11.addConstraint([
    Sketcher.Constraint("Coincident", 0, 2, 1, 1),
    Sketcher.Constraint("Coincident", 1, 2, 2, 1),
    Sketcher.Constraint("Coincident", 2, 2, 3, 1),
    Sketcher.Constraint("Coincident", 3, 2, 0, 1),
    Sketcher.Constraint("Vertical", 0),
    Sketcher.Constraint("Horizontal", 1),
    Sketcher.Constraint("Vertical", 2),
    Sketcher.Constraint("Horizontal", 3),
    Sketcher.Constraint("Symmetric", 2, 2, 3, 2, -1, 1),
    Sketcher.Constraint("DistanceX", 1, 1, 1, 2, Q("20 mm")),
    Sketcher.Constraint("DistanceY", 0, 2, 0, 1, Q("50 mm")),
])
pocket5 = body.newObject("PartDesign::Pocket", "Pocket004")
pocket5.Profile = sketch11
pocket5.Type = "ThroughAll"
pocket5.Midplane = True

sketch12 = body.newObject("Sketcher::SketchObject", "Sketch011")
sketch12.AttachmentSupport = (doc.getObject("XY_Plane"), [""])
sketch12.MapMode = "FlatFace"
sketch12.addGeometry([
    Part.LineSegment(App.Vector(-35, -32.8, 0), App.Vector(-35, -38.6, 0)),
    Part.LineSegment(App.Vector(-35, -38.6, 0), App.Vector(-20, -38.6, 0)),
    Part.LineSegment(App.Vector(-20, -38.6, 0), App.Vector(-20, -32.8, 0)),
    Part.LineSegment(App.Vector(-20, -32.8, 0), App.Vector(-35, -32.8, 0)),
    Part.LineSegment(App.Vector(18.2, -28, 0), App.Vector(18.2, -31, 0)),
    Part.LineSegment(App.Vector(18.2, -31, 0), App.Vector(33.2, -31, 0)),
    Part.LineSegment(App.Vector(33.2, -31, 0), App.Vector(33.2, -28, 0)),
    Part.LineSegment(App.Vector(33.2, -28, 0), App.Vector(18.2, -28, 0)),
], False)
sketch12.addConstraint([
    Sketcher.Constraint("Coincident", 0, 2, 1, 1),
    Sketcher.Constraint("Coincident", 1, 2, 2, 1),
    Sketcher.Constraint("Coincident", 2, 2, 3, 1),
    Sketcher.Constraint("Coincident", 3, 2, 0, 1),
    Sketcher.Constraint("Coincident", 4, 2, 5, 1),
    Sketcher.Constraint("Coincident", 5, 2, 6, 1),
    Sketcher.Constraint("Coincident", 6, 2, 7, 1),
    Sketcher.Constraint("Coincident", 7, 2, 4, 1),
    Sketcher.Constraint("Vertical", 0),
    Sketcher.Constraint("Horizontal", 1),
    Sketcher.Constraint("Vertical", 2),
    Sketcher.Constraint("Horizontal", 3),
    Sketcher.Constraint("Vertical", 4),
    Sketcher.Constraint("Horizontal", 5),
    Sketcher.Constraint("Vertical", 6),
    Sketcher.Constraint("Horizontal", 7),
    Sketcher.Constraint("Equal", 3, 5),
    Sketcher.Constraint("DistanceX", 1, 1, 1, 2, Q("15 mm")),
    Sketcher.Constraint("DistanceY", 4, 2, 4, 1, Q("3 mm")),
    Sketcher.Constraint("DistanceY", 0, 2, 0, 1, Q("5.8 mm")),
    Sketcher.Constraint("DistanceX", 0, 2, -1, 1, Q("35 mm")),
    Sketcher.Constraint("DistanceY", 4, 2, -1, 1, Q("31 mm")),
    Sketcher.Constraint("DistanceY", 0, 2, -1, 1, Q("38.6 mm")),
    Sketcher.Constraint("DistanceX", -1, 1, 4, 2, Q("18.2 mm")),
])
pocket6 = body.newObject("PartDesign::Pocket", "Pocket005")
pocket6.Profile = sketch12
pocket6.Type = "ThroughAll"
pocket6.Midplane = True

doc.recompute()
